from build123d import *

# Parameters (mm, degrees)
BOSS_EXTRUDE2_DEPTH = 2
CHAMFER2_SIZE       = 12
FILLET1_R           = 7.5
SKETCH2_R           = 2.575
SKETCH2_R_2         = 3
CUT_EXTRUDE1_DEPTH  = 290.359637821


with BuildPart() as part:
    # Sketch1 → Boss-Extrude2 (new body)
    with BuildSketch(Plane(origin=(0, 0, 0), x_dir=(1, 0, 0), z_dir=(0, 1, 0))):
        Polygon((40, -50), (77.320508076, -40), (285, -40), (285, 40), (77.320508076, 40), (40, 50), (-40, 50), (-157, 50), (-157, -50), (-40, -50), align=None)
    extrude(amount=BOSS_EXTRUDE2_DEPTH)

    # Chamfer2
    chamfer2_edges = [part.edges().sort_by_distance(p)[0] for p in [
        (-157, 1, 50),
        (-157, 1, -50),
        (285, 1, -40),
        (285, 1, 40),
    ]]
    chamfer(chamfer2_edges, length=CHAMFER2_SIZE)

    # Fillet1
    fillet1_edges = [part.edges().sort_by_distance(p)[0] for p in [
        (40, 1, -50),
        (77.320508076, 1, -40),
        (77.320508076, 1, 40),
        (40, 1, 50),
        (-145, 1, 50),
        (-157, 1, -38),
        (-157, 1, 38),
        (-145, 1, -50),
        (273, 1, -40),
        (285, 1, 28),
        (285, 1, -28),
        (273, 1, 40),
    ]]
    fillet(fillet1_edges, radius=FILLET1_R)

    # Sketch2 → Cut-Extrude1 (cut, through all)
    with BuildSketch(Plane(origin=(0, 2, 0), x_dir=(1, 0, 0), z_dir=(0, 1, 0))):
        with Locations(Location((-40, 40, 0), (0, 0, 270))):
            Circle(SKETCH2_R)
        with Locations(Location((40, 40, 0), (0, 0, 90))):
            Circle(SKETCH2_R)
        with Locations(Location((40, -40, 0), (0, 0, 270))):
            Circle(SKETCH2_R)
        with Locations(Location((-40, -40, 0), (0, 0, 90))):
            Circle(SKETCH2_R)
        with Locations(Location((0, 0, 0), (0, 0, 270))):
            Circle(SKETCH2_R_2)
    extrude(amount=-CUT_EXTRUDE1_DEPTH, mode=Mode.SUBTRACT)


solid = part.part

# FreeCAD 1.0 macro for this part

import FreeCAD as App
import Part
import Sketcher

V = App.Vector
Q = App.Units.Quantity


def edges_at(feature, points):
    """Names of the edges that pass closest to the given points."""
    edges = feature.Shape.Edges
    near = lambda p: min(range(len(edges)), key=lambda i: edges[i].distToShape(Part.Vertex(*p))[0])
    return sorted({f"Edge{near(p) + 1}" for p in points})

doc = App.newDocument("Part")
body = doc.addObject("PartDesign::Body", "Body")

sketch1 = body.newObject("Sketcher::SketchObject", "Sketch")
sketch1.AttachmentSupport = (doc.getObject("XZ_Plane"), [""])
sketch1.MapMode = "FlatFace"
sketch1.addGeometry([
    Part.LineSegment(V(40, 50, 0), V(77, 40, 0)),
    Part.LineSegment(V(77, 40, 0), V(285, 40, 0)),
    Part.LineSegment(V(285, 40, 0), V(285, -40, 0)),
    Part.LineSegment(V(285, -40, 0), V(77, -40, 0)),
    Part.LineSegment(V(77, -40, 0), V(40, -50, 0)),
    Part.LineSegment(V(40, -50, 0), V(-157, -50, 0)),
    Part.LineSegment(V(-157, -50, 0), V(-157, 50, 0)),
    Part.LineSegment(V(-157, 50, 0), V(40, 50, 0)),
], False)
sketch1.addConstraint([
    Sketcher.Constraint("Coincident", 0, 2, 1, 1),
    Sketcher.Constraint("Coincident", 1, 2, 2, 1),
    Sketcher.Constraint("Coincident", 2, 2, 3, 1),
    Sketcher.Constraint("Coincident", 3, 2, 4, 1),
    Sketcher.Constraint("Coincident", 4, 2, 5, 1),
    Sketcher.Constraint("Coincident", 5, 2, 6, 1),
    Sketcher.Constraint("Coincident", 6, 2, 7, 1),
    Sketcher.Constraint("Coincident", 7, 2, 0, 1),
    Sketcher.Constraint("Horizontal", 1),
    Sketcher.Constraint("Vertical", 2),
    Sketcher.Constraint("Horizontal", 3),
    Sketcher.Constraint("Horizontal", 5),
    Sketcher.Constraint("Vertical", 6),
    Sketcher.Constraint("Horizontal", 7),
    Sketcher.Constraint("Symmetric", 0, 2, 3, 2, -1),
    Sketcher.Constraint("Symmetric", 4, 2, 7, 2, -1),
    Sketcher.Constraint("DistanceX", 5, 2, 5, 1, 197.0),
    Sketcher.Constraint("DistanceY", 2, 2, 2, 1, 80.0),
    Sketcher.Constraint("DistanceY", 6, 1, 6, 2, 100.0),
    Sketcher.Constraint("Angle", 0, Q("-15 deg")),
    Sketcher.Constraint("DistanceX", -1, 1, 1, 2, 285.0),
    Sketcher.Constraint("DistanceX", -1, 1, 4, 2, 40.0),
])
pad1 = body.newObject("PartDesign::Pad", "Pad")
pad1.Profile = sketch1
pad1.Length = 2
pad1.Reversed = True
doc.recompute()

chamfer = body.newObject("PartDesign::Chamfer", "Chamfer")
chamfer.Base = (pad1, edges_at(pad1, [
    (-157, 1, 50),
    (-157, 1, -50),
    (285, 1, -40),
    (285, 1, 40),
]))
chamfer.Size = 12
doc.recompute()

fillet = body.newObject("PartDesign::Fillet", "Fillet")
fillet.Base = (chamfer, edges_at(chamfer, [
    (40, 1, -50),
    (77.321, 1, -40),
    (77.321, 1, 40),
    (40, 1, 50),
    (-145, 1, 50),
    (-157, 1, -38),
    (-157, 1, 38),
    (-145, 1, -50),
    (273, 1, -40),
    (285, 1, 28),
    (285, 1, -28),
    (273, 1, 40),
]))
fillet.Radius = 7.5

sketch2 = body.newObject("Sketcher::SketchObject", "Sketch001")
sketch2.AttachmentSupport = (doc.getObject("XZ_Plane"), [""])
sketch2.MapMode = "FlatFace"
sketch2.AttachmentOffset = App.Placement(V(0, 0, -2), App.Rotation())
sketch2.addGeometry([
    Part.Circle(V(-40, -40, 0), V(0, 0, 1), 2.6),
    Part.Circle(V(40, -40, 0), V(0, 0, 1), 2.6),
    Part.Circle(V(40, 40, 0), V(0, 0, 1), 2.6),
    Part.Circle(V(-40, 40, 0), V(0, 0, 1), 2.6),
    Part.Circle(V(0, 0, 0), V(0, 0, 1), 3),
], False)
sketch2.addConstraint([
    Sketcher.Constraint("Coincident", 4, 3, -1, 1),
    Sketcher.Constraint("Equal", 0, 1),
    Sketcher.Constraint("Equal", 1, 2),
    Sketcher.Constraint("Equal", 2, 3),
    Sketcher.Constraint("Symmetric", 0, 3, 2, 3, -1, 1),
    Sketcher.Constraint("Symmetric", 1, 3, 3, 3, -1, 1),
    Sketcher.Constraint("Symmetric", 0, 3, 1, 3, -2),
    Sketcher.Constraint("Diameter", 4, 6.0),
    Sketcher.Constraint("Diameter", 0, 5.15),
    Sketcher.Constraint("DistanceX", 0, 3, -1, 1, 40.0),
    Sketcher.Constraint("DistanceY", 0, 3, -1, 1, 40.0),
])
pocket1 = body.newObject("PartDesign::Pocket", "Pocket")
pocket1.Profile = sketch2
pocket1.Type = "ThroughAll"
pocket1.Reversed = True

doc.recompute()
